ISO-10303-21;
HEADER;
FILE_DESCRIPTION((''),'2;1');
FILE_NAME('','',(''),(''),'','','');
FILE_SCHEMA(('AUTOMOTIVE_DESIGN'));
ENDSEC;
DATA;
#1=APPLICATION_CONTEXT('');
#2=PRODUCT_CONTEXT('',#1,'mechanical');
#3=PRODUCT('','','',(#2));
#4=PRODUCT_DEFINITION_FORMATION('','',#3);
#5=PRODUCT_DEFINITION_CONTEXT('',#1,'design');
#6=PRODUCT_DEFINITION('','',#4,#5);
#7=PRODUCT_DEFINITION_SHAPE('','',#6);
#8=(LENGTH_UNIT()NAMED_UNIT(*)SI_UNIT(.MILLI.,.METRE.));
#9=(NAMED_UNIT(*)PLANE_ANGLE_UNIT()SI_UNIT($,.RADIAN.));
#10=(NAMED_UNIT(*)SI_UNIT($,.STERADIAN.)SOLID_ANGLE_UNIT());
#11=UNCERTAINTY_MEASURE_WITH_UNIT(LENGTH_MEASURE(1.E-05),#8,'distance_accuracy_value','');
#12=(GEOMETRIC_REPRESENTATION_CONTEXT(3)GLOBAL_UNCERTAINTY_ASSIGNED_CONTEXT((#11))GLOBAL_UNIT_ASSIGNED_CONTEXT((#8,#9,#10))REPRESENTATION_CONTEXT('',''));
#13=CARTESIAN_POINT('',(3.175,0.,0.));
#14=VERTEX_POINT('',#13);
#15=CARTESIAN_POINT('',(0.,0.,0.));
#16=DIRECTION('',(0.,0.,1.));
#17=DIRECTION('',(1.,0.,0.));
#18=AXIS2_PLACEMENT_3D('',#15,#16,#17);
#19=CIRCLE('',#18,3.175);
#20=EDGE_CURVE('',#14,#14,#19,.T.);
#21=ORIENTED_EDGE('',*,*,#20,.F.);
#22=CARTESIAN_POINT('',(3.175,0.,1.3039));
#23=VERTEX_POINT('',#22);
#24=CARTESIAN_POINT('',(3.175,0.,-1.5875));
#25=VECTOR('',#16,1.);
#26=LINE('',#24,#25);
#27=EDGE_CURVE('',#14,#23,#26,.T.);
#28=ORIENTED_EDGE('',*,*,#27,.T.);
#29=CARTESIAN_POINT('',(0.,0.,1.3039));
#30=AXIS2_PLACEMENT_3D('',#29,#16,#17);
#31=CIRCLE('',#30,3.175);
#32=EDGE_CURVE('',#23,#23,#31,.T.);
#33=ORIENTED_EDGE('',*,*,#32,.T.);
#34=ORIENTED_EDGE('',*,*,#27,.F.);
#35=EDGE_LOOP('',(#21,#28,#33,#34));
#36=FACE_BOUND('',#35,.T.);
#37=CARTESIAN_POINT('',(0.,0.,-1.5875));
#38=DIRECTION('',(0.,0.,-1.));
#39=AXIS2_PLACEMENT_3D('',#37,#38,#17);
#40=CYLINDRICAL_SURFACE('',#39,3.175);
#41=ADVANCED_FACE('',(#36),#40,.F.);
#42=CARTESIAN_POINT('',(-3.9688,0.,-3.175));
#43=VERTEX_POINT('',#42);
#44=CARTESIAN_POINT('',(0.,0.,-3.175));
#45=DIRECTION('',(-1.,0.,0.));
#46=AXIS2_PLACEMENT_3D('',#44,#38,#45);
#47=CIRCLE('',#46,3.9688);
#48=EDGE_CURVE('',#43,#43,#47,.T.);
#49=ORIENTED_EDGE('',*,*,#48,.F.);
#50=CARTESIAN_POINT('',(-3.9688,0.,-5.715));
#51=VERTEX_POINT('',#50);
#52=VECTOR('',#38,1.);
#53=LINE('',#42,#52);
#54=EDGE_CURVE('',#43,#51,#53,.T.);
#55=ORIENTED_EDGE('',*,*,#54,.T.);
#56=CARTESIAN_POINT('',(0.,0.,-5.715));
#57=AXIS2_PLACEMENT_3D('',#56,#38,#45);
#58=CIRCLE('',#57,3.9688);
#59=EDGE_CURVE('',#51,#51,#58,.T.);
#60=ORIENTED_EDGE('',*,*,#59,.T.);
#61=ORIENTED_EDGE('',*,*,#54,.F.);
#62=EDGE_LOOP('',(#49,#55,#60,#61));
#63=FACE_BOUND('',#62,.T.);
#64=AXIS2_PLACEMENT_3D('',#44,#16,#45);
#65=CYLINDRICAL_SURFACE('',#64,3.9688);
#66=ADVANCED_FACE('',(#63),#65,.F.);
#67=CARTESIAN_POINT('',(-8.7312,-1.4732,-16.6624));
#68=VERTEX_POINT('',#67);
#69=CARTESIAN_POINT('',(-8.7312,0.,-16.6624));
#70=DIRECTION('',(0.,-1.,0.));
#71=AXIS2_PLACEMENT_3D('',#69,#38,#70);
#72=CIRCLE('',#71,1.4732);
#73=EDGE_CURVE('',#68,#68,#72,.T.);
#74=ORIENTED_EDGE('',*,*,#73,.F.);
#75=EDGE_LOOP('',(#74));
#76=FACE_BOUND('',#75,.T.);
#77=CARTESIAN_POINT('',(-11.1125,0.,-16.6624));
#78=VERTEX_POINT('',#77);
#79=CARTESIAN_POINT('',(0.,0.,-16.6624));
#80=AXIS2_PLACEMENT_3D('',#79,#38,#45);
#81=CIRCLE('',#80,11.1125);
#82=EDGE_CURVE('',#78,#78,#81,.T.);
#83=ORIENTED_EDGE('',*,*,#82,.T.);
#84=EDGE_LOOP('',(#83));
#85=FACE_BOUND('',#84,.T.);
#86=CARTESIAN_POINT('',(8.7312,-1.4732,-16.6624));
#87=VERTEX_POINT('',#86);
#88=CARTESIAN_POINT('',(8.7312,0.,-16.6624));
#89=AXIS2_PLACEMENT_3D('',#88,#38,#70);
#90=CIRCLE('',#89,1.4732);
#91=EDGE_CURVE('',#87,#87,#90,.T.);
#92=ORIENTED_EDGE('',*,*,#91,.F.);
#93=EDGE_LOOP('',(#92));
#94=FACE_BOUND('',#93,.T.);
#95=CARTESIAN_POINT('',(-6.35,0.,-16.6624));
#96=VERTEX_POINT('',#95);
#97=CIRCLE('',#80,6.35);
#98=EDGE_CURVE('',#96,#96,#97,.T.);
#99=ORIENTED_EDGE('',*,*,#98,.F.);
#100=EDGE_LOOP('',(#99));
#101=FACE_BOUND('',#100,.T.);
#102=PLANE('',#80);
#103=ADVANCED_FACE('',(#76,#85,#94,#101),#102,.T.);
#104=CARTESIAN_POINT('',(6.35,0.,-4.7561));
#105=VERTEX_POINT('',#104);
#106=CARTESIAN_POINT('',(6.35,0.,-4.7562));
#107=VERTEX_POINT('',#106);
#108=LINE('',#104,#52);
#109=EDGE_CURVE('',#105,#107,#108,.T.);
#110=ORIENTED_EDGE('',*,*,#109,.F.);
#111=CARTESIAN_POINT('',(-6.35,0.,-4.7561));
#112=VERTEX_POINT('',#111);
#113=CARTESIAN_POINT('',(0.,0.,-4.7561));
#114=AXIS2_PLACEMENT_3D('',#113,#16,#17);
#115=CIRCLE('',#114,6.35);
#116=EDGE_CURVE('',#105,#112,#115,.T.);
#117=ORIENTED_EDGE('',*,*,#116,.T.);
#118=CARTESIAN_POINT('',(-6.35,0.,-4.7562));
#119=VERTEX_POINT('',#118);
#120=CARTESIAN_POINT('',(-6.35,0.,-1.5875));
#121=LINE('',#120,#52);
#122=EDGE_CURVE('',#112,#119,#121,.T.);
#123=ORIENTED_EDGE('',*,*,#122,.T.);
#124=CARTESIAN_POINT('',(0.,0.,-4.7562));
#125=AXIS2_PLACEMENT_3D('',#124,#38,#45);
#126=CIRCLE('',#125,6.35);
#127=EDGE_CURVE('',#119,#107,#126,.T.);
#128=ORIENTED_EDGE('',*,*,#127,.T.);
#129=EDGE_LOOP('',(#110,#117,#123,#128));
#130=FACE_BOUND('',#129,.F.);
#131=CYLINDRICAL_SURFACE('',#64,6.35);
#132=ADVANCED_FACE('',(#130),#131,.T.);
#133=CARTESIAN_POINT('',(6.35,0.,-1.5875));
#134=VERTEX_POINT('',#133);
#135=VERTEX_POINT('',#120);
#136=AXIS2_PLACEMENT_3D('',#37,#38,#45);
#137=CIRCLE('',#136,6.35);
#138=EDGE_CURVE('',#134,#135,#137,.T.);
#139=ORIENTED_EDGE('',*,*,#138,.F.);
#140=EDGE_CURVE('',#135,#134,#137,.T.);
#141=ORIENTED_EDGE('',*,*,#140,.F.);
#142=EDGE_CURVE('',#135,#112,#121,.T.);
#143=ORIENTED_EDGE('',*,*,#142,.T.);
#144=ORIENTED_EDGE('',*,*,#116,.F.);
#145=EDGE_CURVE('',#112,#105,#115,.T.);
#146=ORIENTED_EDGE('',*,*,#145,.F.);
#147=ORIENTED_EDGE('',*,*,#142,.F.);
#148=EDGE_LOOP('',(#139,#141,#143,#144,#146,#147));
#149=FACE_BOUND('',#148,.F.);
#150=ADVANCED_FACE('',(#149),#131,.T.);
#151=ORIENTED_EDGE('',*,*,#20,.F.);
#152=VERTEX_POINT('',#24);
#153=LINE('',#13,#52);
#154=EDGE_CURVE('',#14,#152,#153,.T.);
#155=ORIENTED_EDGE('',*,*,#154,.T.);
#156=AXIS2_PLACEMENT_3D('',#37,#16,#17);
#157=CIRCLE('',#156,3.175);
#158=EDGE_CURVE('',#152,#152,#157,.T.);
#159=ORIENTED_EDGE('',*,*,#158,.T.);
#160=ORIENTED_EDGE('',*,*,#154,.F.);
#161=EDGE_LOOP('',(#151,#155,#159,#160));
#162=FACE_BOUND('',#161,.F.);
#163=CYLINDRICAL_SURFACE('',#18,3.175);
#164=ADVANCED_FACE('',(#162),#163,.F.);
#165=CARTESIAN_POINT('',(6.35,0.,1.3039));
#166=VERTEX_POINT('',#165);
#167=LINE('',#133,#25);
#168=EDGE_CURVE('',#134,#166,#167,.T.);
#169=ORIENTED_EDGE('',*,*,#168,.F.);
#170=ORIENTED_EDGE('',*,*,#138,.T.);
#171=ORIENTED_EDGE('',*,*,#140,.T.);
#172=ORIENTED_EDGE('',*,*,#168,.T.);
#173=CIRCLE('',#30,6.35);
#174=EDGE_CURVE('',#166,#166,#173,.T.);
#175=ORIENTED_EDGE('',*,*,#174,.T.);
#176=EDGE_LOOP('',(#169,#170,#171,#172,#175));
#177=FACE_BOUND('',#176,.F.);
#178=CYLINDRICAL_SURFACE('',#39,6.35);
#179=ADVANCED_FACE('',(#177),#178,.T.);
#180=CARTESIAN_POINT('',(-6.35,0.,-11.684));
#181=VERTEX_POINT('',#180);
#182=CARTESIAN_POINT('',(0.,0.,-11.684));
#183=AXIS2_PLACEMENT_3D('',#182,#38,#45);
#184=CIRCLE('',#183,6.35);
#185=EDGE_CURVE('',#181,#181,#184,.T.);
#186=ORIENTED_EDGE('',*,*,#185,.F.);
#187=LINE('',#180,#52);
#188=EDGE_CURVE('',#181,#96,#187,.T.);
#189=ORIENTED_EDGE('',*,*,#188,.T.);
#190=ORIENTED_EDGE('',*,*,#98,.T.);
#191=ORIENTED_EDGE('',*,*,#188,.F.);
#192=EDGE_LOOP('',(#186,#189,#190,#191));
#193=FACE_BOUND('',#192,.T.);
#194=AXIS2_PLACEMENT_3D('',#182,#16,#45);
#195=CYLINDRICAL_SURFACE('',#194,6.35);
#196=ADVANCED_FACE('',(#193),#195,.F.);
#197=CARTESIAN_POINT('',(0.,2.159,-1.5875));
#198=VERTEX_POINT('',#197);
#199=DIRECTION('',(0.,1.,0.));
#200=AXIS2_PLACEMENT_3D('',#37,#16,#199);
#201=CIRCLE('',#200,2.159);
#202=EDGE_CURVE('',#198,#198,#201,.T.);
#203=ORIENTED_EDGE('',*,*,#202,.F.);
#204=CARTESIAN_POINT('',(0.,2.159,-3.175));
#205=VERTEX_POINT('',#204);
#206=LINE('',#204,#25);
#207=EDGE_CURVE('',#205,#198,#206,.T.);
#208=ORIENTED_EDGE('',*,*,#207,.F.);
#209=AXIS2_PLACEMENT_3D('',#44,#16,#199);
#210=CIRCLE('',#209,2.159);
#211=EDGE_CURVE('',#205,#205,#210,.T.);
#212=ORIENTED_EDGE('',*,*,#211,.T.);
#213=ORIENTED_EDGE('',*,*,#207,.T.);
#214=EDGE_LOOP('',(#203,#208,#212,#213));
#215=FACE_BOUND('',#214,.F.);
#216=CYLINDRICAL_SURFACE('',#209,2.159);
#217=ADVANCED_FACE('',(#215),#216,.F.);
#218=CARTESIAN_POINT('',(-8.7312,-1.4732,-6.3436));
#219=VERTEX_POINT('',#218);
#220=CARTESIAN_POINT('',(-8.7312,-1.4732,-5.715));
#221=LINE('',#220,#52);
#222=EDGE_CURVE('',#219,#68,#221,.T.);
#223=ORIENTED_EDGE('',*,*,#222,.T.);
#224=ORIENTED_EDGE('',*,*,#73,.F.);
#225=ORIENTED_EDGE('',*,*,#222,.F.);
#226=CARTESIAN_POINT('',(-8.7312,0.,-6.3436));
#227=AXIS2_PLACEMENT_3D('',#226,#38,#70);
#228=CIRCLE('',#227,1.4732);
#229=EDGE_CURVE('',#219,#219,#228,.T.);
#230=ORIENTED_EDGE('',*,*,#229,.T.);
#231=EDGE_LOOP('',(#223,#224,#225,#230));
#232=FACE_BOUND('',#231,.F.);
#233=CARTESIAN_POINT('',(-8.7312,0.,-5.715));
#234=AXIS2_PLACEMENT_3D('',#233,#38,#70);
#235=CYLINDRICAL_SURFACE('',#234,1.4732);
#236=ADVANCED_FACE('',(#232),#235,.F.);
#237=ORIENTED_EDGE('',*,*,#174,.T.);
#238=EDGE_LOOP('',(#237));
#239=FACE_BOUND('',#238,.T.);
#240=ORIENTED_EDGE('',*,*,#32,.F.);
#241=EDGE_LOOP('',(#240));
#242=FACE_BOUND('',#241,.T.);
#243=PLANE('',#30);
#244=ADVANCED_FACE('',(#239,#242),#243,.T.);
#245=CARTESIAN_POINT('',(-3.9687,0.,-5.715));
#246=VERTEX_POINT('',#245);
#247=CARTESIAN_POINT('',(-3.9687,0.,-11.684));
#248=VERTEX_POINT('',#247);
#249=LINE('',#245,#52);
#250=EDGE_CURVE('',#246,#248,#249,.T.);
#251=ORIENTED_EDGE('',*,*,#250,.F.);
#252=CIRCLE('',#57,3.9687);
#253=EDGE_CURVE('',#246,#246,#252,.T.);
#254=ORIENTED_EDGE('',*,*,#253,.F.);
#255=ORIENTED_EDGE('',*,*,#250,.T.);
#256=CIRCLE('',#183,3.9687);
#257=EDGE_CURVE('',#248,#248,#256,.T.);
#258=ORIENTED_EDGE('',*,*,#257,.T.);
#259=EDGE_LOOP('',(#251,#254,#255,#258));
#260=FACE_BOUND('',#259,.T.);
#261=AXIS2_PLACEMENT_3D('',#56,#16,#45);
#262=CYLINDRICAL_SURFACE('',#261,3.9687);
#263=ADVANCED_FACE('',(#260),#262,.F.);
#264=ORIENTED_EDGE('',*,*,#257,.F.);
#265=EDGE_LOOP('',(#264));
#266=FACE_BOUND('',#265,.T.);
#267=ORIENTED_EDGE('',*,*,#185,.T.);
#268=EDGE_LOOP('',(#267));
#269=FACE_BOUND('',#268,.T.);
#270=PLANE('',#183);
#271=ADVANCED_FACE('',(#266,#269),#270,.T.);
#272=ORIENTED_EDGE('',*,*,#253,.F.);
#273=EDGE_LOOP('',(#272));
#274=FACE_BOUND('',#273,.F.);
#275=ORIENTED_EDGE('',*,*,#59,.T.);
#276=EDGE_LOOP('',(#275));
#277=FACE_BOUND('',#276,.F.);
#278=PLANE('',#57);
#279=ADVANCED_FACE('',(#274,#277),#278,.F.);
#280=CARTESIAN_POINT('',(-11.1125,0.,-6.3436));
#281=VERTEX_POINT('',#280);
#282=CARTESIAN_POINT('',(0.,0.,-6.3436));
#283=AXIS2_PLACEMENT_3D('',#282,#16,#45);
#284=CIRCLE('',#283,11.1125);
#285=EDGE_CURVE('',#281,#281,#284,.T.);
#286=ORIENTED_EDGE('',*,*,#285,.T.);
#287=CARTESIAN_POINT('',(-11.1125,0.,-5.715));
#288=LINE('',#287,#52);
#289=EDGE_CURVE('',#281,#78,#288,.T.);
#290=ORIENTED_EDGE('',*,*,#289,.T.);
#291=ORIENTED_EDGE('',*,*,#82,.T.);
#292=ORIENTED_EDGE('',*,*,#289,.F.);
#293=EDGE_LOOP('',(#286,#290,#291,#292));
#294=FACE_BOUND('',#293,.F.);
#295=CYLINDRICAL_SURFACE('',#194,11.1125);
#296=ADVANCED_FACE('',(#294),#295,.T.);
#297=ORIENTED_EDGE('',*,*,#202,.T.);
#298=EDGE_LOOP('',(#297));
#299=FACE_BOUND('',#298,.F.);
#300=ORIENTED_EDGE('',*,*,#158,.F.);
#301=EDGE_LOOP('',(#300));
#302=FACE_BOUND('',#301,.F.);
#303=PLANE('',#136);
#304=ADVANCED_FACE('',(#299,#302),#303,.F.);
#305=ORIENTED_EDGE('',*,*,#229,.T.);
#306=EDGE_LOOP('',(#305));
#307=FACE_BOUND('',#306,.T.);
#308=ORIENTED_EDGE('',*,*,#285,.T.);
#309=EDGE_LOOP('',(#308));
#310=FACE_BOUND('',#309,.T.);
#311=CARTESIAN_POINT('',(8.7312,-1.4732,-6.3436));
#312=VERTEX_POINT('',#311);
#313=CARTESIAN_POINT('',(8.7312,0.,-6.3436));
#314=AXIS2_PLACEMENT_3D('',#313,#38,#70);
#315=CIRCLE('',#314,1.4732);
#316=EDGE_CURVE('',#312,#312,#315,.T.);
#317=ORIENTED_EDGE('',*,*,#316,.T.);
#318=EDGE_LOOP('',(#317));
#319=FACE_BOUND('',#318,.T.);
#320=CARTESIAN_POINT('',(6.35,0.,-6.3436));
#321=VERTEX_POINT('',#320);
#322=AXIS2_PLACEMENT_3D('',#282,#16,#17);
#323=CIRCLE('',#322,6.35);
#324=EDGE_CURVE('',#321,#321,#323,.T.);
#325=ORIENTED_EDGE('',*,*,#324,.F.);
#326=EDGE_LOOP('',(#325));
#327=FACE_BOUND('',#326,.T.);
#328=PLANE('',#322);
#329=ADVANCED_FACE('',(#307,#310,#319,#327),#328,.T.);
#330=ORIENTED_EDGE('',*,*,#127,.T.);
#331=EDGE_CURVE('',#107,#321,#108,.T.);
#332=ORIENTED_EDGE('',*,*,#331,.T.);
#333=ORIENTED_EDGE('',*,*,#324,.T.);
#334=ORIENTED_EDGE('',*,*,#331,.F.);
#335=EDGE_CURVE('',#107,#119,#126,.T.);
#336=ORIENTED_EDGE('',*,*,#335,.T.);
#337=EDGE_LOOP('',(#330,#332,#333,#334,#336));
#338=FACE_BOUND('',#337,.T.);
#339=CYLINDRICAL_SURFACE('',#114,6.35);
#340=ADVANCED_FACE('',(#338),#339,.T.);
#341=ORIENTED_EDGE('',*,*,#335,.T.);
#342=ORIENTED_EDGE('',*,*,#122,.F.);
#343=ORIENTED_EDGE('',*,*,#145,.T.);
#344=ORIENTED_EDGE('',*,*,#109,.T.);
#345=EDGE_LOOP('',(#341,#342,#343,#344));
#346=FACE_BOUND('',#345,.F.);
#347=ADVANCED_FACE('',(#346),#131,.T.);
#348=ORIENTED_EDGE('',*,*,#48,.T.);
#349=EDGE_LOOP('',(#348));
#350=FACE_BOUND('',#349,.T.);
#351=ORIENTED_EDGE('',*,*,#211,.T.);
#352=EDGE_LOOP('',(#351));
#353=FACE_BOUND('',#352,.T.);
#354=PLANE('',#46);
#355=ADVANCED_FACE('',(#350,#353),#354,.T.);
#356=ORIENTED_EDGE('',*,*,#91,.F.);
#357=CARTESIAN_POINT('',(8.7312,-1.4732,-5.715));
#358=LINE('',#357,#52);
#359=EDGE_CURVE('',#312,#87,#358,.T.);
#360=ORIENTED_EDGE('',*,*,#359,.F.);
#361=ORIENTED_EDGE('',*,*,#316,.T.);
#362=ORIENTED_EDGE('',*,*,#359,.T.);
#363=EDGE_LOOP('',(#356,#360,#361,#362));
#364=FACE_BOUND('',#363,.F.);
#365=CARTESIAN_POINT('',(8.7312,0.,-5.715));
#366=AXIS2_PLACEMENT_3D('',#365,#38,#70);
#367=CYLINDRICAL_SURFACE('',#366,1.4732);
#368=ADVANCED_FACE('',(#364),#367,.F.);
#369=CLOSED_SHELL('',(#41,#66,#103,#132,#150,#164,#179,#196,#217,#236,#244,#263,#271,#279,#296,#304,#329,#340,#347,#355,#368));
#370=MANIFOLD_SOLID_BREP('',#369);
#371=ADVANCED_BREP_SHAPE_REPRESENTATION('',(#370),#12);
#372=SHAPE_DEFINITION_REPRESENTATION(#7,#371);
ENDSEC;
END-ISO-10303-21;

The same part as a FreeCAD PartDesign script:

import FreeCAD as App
import Part
import Sketcher
Q = App.Units.Quantity

doc = App.newDocument("Part")
body = doc.addObject("PartDesign::Body", "Body")

sketch1 = body.newObject("Sketcher::SketchObject", "Sketch")
sketch1.AttachmentSupport = (doc.getObject("XY_Plane"), [""])
sketch1.MapMode = "FlatFace"
sketch1.addGeometry([
    Part.Circle(App.Vector(0, 0, 0), App.Vector(0, 0, 1), 4.7625),
    Part.Circle(App.Vector(0, 0, 0), App.Vector(0, 0, 1), 3.175),
], False)
sketch1.addConstraint([
    Sketcher.Constraint("Coincident", 0, 3, -1, 1),
    Sketcher.Constraint("Coincident", 1, 3, -1, 1),
    Sketcher.Constraint("Diameter", 1, Q("0.25 in")),
    Sketcher.Constraint("Diameter", 0, Q("0.375 in")),
])
pad1 = body.newObject("PartDesign::Pad", "Pad")
pad1.Profile = sketch1
pad1.Length = Q("0.0625 in")
pad1.Reversed = True

sketch2 = body.newObject("Sketcher::SketchObject", "Sketch001")
sketch2.AttachmentSupport = (doc.getObject("XY_Plane"), [""])
sketch2.MapMode = "FlatFace"
sketch2.AttachmentOffset = App.Placement(App.Vector(0, 0, -0.0625 * 25.4), App.Rotation())
sketch2.addGeometry(Part.Circle(App.Vector(0, 0, 0), App.Vector(0, 0, 1), 6.35), False)
sketch2.addConstraint([
    Sketcher.Constraint("Coincident", 0, 3, -1, 1),
    Sketcher.Constraint("Diameter", 0, Q("0.5 in")),
])
pad2 = body.newObject("PartDesign::Pad", "Pad001")
pad2.Profile = sketch2
pad2.Length = Q("0.0625 in")
pad2.Reversed = True

sketch3 = body.newObject("Sketcher::SketchObject", "Sketch002")
sketch3.AttachmentSupport = (doc.getObject("XY_Plane"), [""])
sketch3.MapMode = "FlatFace"
sketch3.AttachmentOffset = App.Placement(App.Vector(0, 0, -0.125 * 25.4), App.Rotation())
sketch3.addGeometry([
    Part.Circle(App.Vector(0, 0, 0), App.Vector(0, 0, 1), 6.35),
    Part.Circle(App.Vector(0, 0, 0), App.Vector(0, 0, 1), 3.9688),
], False)
sketch3.addConstraint([
    Sketcher.Constraint("Coincident", 0, 3, -1, 1),
    Sketcher.Constraint("Coincident", 1, 3, -1, 1),
    Sketcher.Constraint("Diameter", 1, Q("0.3125 in")),
    Sketcher.Constraint("Diameter", 0, Q("0.5 in")),
])
pad3 = body.newObject("PartDesign::Pad", "Pad002")
pad3.Profile = sketch3
pad3.Length = Q("0.1 in")
pad3.Reversed = True

sketch4 = body.newObject("Sketcher::SketchObject", "Sketch003")
sketch4.AttachmentSupport = (doc.getObject("XY_Plane"), [""])
sketch4.MapMode = "FlatFace"
sketch4.AttachmentOffset = App.Placement(App.Vector(0, 0, -0.125 * 25.4), App.Rotation())
sketch4.addGeometry(Part.Circle(App.Vector(0, 0, 0), App.Vector(0, 0, 1), 2.159), False)
sketch4.addConstraint([
    Sketcher.Constraint("Coincident", 0, 3, -1, 1),
    Sketcher.Constraint("Diameter", 0, Q("0.17 in")),
])
doc.recompute()
hole = body.newObject("PartDesign::Hole", "Hole")
hole.Profile = sketch4
hole.ThreadType = "None"
hole.Diameter = Q("0.17 in")
hole.DepthType = "Dimension"
hole.Depth = Q("1 in")
hole.DrillPoint = "Angled"
hole.DrillPointAngle = 118
hole.Reversed = True

sketch5 = body.newObject("Sketcher::SketchObject", "Sketch004")
sketch5.AttachmentSupport = (doc.getObject("XY_Plane"), [""])
sketch5.MapMode = "FlatFace"
sketch5.AttachmentOffset = App.Placement(App.Vector(0, 0, -0.225 * 25.4), App.Rotation())
sketch5.addGeometry([
    Part.Circle(App.Vector(0, 0, 0), App.Vector(0, 0, 1), 11.1125),
    Part.Circle(App.Vector(0, 0, 0), App.Vector(0, 0, 1), 3.9687),
], False)
sketch5.addConstraint([
    Sketcher.Constraint("Coincident", 0, 3, -1, 1),
    Sketcher.Constraint("Coincident", 1, 3, -1, 1),
    Sketcher.Constraint("Diameter", 0, Q("0.875 in")),
    Sketcher.Constraint("Diameter", 1, Q("0.3125 in")),
])
pad4 = body.newObject("PartDesign::Pad", "Pad003")
pad4.Profile = sketch5
pad4.Length = Q("0.235 in")
pad4.Reversed = True

sketch6 = body.newObject("Sketcher::SketchObject", "Sketch005")
sketch6.AttachmentSupport = (doc.getObject("XY_Plane"), [""])
sketch6.MapMode = "FlatFace"
sketch6.AttachmentOffset = App.Placement(App.Vector(0, 0, -0.46 * 25.4), App.Rotation())
sketch6.addGeometry([
    Part.Circle(App.Vector(0, 0, 0), App.Vector(0, 0, 1), 11.1125),
    Part.Circle(App.Vector(0, 0, 0), App.Vector(0, 0, 1), 6.35),
], False)
sketch6.addConstraint([
    Sketcher.Constraint("Coincident", 0, 3, -1, 1),
    Sketcher.Constraint("Coincident", 1, 3, -1, 1),
    Sketcher.Constraint("Diameter", 1, Q("0.5 in")),
    Sketcher.Constraint("Diameter", 0, Q("0.875 in")),
])
pad5 = body.newObject("PartDesign::Pad", "Pad004")
pad5.Profile = sketch6
pad5.Length = Q("0.196 in")
pad5.Reversed = True

sketch7 = body.newObject("Sketcher::SketchObject", "Sketch006")
sketch7.AttachmentSupport = (doc.getObject("XY_Plane"), [""])
sketch7.MapMode = "FlatFace"
sketch7.AttachmentOffset = App.Placement(App.Vector(0, 0, -0.225 * 25.4), App.Rotation())
sketch7.addGeometry([
    Part.Circle(App.Vector(-8.7312, 0, 0), App.Vector(0, 0, 1), 1.4732),
    Part.Circle(App.Vector(8.7312, 0, 0), App.Vector(0, 0, 1), 1.4732),
], False)
sketch7.addConstraint([
    Sketcher.Constraint("Equal", 0, 1),
    Sketcher.Constraint("Symmetric", 0, 3, 1, 3, -1, 1),
    Sketcher.Constraint("PointOnObject", 0, 3, -1),
    Sketcher.Constraint("Diameter", 0, Q("0.116 in")),
    Sketcher.Constraint("DistanceX", 0, 3, -1, 1, Q("0.343748 in")),
])
doc.recompute()
hole2 = body.newObject("PartDesign::Hole", "Hole001")
hole2.Profile = sketch7
hole2.ThreadType = "None"
hole2.Diameter = Q("0.116 in")
hole2.DepthType = "ThroughAll"

sketch8 = body.newObject("Sketcher::SketchObject", "Sketch007")
sketch8.AttachmentSupport = (doc.getObject("XY_Plane"), [""])
sketch8.MapMode = "FlatFace"
sketch8.AttachmentOffset = App.Placement(App.Vector(0, 0, -0.225 * 25.4), App.Rotation())
sketch8.addGeometry([
    Part.Circle(App.Vector(0, 0, 0), App.Vector(0, 0, 1), 11.1125),
    Part.Circle(App.Vector(-8.7312, 0, 0), App.Vector(0, 0, 1), 1.4732),
    Part.Circle(App.Vector(0, 0, 0), App.Vector(0, 0, 1), 6.35),
    Part.Circle(App.Vector(8.7312, 0, 0), App.Vector(0, 0, 1), 1.4732),
], False)
sketch8.addConstraint([
    Sketcher.Constraint("Coincident", 0, 3, -1, 1),
    Sketcher.Constraint("Coincident", 2, 3, -1, 1),
    Sketcher.Constraint("Equal", 1, 3),
    Sketcher.Constraint("Symmetric", 1, 3, 3, 3, -1, 1),
    Sketcher.Constraint("PointOnObject", 1, 3, -1),
    Sketcher.Constraint("Diameter", 2, Q("0.5 in")),
    Sketcher.Constraint("Diameter", 0, Q("0.875 in")),
    Sketcher.Constraint("Diameter", 1, Q("0.116 in")),
    Sketcher.Constraint("DistanceX", 1, 3, -1, 1, Q("0.343748 in")),
])
pad6 = body.newObject("PartDesign::Pad", "Pad005")
pad6.Profile = sketch8
pad6.Length = 0.9588

sketch9 = body.newObject("Sketcher::SketchObject", "Sketch008")
sketch9.AttachmentSupport = (doc.getObject("XY_Plane"), [""])
sketch9.MapMode = "FlatFace"
sketch9.AttachmentOffset = App.Placement(App.Vector(0, 0, -0.0625 * 25.4), App.Rotation())
sketch9.addGeometry([
    Part.Circle(App.Vector(0, 0, 0), App.Vector(0, 0, 1), 6.35),
    Part.Circle(App.Vector(0, 0, 0), App.Vector(0, 0, 1), 3.175),
], False)
sketch9.addConstraint([
    Sketcher.Constraint("Coincident", 0, 3, -1, 1),
    Sketcher.Constraint("Coincident", 1, 3, -1, 1),
    Sketcher.Constraint("Diameter", 0, Q("0.5 in")),
    Sketcher.Constraint("Diameter", 1, Q("0.25 in")),
])
pad7 = body.newObject("PartDesign::Pad", "Pad006")
pad7.Profile = sketch9
pad7.Length = 2.8914

sketch10 = body.newObject("Sketcher::SketchObject", "Sketch009")
sketch10.AttachmentSupport = (doc.getObject("XY_Plane"), [""])
sketch10.MapMode = "FlatFace"
sketch10.AttachmentOffset = App.Placement(App.Vector(0, 0, -4.7561), App.Rotation())
sketch10.addGeometry([
    Part.Circle(App.Vector(0, 0, 0), App.Vector(0, 0, 1), 11.1125),
    Part.Circle(App.Vector(-8.7312, 0, 0), App.Vector(0, 0, 1), 1.4732),
    Part.Circle(App.Vector(0, 0, 0), App.Vector(0, 0, 1), 6.35),
    Part.Circle(App.Vector(8.7312, 0, 0), App.Vector(0, 0, 1), 1.4732),
], False)
sketch10.addConstraint([
    Sketcher.Constraint("Coincident", 0, 3, -1, 1),
    Sketcher.Constraint("Coincident", 2, 3, -1, 1),
    Sketcher.Constraint("Equal", 1, 3),
    Sketcher.Constraint("Symmetric", 1, 3, 3, 3, -1, 1),
    Sketcher.Constraint("PointOnObject", 1, 3, -1),
    Sketcher.Constraint("Diameter", 2, Q("0.5 in")),
    Sketcher.Constraint("Diameter", 0, Q("0.875 in")),
    Sketcher.Constraint("Diameter", 1, Q("0.116 in")),
    Sketcher.Constraint("DistanceX", 1, 3, -1, 1, Q("0.343748 in")),
])
pocket1 = body.newObject("PartDesign::Pocket", "Pocket")
pocket1.Profile = sketch10
pocket1.Length = Q("0.0625 in")

doc.recompute()
